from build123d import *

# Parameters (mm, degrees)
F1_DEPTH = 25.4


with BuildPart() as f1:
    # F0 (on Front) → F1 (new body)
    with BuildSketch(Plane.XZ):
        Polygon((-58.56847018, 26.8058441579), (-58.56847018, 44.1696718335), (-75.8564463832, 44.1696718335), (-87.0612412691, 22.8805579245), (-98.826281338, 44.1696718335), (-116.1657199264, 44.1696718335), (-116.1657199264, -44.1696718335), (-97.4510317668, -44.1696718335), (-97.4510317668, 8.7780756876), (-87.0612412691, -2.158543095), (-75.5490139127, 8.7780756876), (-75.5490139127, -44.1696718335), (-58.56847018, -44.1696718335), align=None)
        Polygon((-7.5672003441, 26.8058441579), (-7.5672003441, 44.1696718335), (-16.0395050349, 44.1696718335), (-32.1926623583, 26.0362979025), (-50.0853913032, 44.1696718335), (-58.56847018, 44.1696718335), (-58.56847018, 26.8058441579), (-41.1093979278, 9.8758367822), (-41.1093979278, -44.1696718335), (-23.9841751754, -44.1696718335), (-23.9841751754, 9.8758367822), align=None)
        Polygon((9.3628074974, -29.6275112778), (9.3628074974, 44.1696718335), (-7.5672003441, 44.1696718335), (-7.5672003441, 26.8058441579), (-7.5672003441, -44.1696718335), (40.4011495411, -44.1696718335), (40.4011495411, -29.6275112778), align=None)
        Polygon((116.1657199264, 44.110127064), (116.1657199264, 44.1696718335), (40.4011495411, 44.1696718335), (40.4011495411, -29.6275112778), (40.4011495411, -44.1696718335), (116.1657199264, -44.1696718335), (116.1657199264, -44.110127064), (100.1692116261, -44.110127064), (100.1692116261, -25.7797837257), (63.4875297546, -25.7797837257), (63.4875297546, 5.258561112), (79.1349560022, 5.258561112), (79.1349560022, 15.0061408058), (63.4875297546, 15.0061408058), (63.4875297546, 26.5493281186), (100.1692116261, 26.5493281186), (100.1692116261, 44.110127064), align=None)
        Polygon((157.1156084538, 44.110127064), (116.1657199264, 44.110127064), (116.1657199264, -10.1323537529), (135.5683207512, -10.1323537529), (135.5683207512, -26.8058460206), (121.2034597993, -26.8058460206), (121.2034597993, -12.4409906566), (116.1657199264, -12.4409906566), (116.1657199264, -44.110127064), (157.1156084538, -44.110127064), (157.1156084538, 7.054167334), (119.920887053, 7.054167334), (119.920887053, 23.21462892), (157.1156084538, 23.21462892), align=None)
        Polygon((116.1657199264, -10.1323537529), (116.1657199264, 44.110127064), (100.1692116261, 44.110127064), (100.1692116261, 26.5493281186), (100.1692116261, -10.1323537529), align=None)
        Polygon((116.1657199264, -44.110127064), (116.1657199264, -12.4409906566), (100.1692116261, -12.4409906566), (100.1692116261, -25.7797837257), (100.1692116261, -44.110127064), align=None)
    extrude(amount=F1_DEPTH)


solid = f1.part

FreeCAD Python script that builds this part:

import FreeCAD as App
import Part
import Sketcher

V = App.Vector
Q = App.Units.Quantity

doc = App.newDocument("Part")
params = doc.addObject("Spreadsheet::Sheet", "Params")
for row, (alias, value) in enumerate([
    ("pad1_length", "1 in"),
], start=1):
    params.set(f"A{row}", alias)
    params.set(f"B{row}", "=" + value)
    params.setAlias(f"B{row}", alias)

body = doc.addObject("PartDesign::Body", "Body")

# Sketch on XZ plane
sketch1 = doc.addObject("Sketcher::SketchObject", "Sketch")
body.addObject(sketch1)
sketch1.AttachmentSupport = (doc.XZ_Plane, [""])
sketch1.MapMode = "FlatFace"
sketch1.addGeometry(Part.LineSegment(V(116.16572, -44.169672, 0), V(116.16572, -44.110127, 0)), False)
sketch1.addGeometry(Part.LineSegment(V(116.16572, -44.110127, 0), V(157.115608, -44.110127, 0)), False)
sketch1.addGeometry(Part.LineSegment(V(157.115608, -44.110127, 0), V(157.115608, 7.054167, 0)), False)
sketch1.addGeometry(Part.LineSegment(V(157.115608, 7.054167, 0), V(119.920887, 7.054167, 0)), False)
sketch1.addGeometry(Part.LineSegment(V(119.920887, 7.054167, 0), V(119.920887, 23.214629, 0)), False)
sketch1.addGeometry(Part.LineSegment(V(119.920887, 23.214629, 0), V(157.115608, 23.214629, 0)), False)
sketch1.addGeometry(Part.LineSegment(V(157.115608, 23.214629, 0), V(157.115608, 44.110127, 0)), False)
sketch1.addGeometry(Part.LineSegment(V(157.115608, 44.110127, 0), V(116.16572, 44.110127, 0)), False)
sketch1.addGeometry(Part.LineSegment(V(116.16572, 44.110127, 0), V(116.16572, 44.169672, 0)), False)
sketch1.addGeometry(Part.LineSegment(V(116.16572, 44.169672, 0), V(40.40115, 44.169672, 0)), False)
sketch1.addGeometry(Part.LineSegment(V(40.40115, 44.169672, 0), V(40.40115, -29.627511, 0)), False)
sketch1.addGeometry(Part.LineSegment(V(40.40115, -29.627511, 0), V(9.362807, -29.627511, 0)), False)
sketch1.addGeometry(Part.LineSegment(V(9.362807, -29.627511, 0), V(9.362807, 44.169672, 0)), False)
sketch1.addGeometry(Part.LineSegment(V(9.362807, 44.169672, 0), V(-16.039505, 44.169672, 0)), False)
sketch1.addGeometry(Part.LineSegment(V(-16.039505, 44.169672, 0), V(-32.192662, 26.036298, 0)), False)
sketch1.addGeometry(Part.LineSegment(V(-32.192662, 26.036298, 0), V(-50.085391, 44.169672, 0)), False)
sketch1.addGeometry(Part.LineSegment(V(-50.085391, 44.169672, 0), V(-75.856446, 44.169672, 0)), False)
sketch1.addGeometry(Part.LineSegment(V(-75.856446, 44.169672, 0), V(-87.061241, 22.880558, 0)), False)
sketch1.addGeometry(Part.LineSegment(V(-87.061241, 22.880558, 0), V(-98.826281, 44.169672, 0)), False)
sketch1.addGeometry(Part.LineSegment(V(-98.826281, 44.169672, 0), V(-116.16572, 44.169672, 0)), False)
sketch1.addGeometry(Part.LineSegment(V(-116.16572, 44.169672, 0), V(-116.16572, -44.169672, 0)), False)
sketch1.addGeometry(Part.LineSegment(V(-116.16572, -44.169672, 0), V(-97.451032, -44.169672, 0)), False)
sketch1.addGeometry(Part.LineSegment(V(-97.451032, -44.169672, 0), V(-97.451032, 8.778076, 0)), False)
sketch1.addGeometry(Part.LineSegment(V(-97.451032, 8.778076, 0), V(-87.061241, -2.158543, 0)), False)
sketch1.addGeometry(Part.LineSegment(V(-87.061241, -2.158543, 0), V(-75.549014, 8.778076, 0)), False)
sketch1.addGeometry(Part.LineSegment(V(-75.549014, 8.778076, 0), V(-75.549014, -44.169672, 0)), False)
sketch1.addGeometry(Part.LineSegment(V(-75.549014, -44.169672, 0), V(-58.56847, -44.169672, 0)), False)
sketch1.addGeometry(Part.LineSegment(V(-58.56847, -44.169672, 0), V(-58.56847, 26.805844, 0)), False)
sketch1.addGeometry(Part.LineSegment(V(-58.56847, 26.805844, 0), V(-41.109398, 9.875837, 0)), False)
sketch1.addGeometry(Part.LineSegment(V(-41.109398, 9.875837, 0), V(-41.109398, -44.169672, 0)), False)
sketch1.addGeometry(Part.LineSegment(V(-41.109398, -44.169672, 0), V(-23.984175, -44.169672, 0)), False)
sketch1.addGeometry(Part.LineSegment(V(-23.984175, -44.169672, 0), V(-23.984175, 9.875837, 0)), False)
sketch1.addGeometry(Part.LineSegment(V(-23.984175, 9.875837, 0), V(-7.5672, 26.805844, 0)), False)
sketch1.addGeometry(Part.LineSegment(V(-7.5672, 26.805844, 0), V(-7.5672, -44.169672, 0)), False)
sketch1.addGeometry(Part.LineSegment(V(-7.5672, -44.169672, 0), V(116.16572, -44.169672, 0)), False)
sketch1.addGeometry(Part.LineSegment(V(121.20346, -12.440991, 0), V(100.169212, -12.440991, 0)), False)
sketch1.addGeometry(Part.LineSegment(V(100.169212, -12.440991, 0), V(100.169212, -25.779784, 0)), False)
sketch1.addGeometry(Part.LineSegment(V(100.169212, -25.779784, 0), V(63.48753, -25.779784, 0)), False)
sketch1.addGeometry(Part.LineSegment(V(63.48753, -25.779784, 0), V(63.48753, 5.258561, 0)), False)
sketch1.addGeometry(Part.LineSegment(V(63.48753, 5.258561, 0), V(79.134956, 5.258561, 0)), False)
sketch1.addGeometry(Part.LineSegment(V(79.134956, 5.258561, 0), V(79.134956, 15.006141, 0)), False)
sketch1.addGeometry(Part.LineSegment(V(79.134956, 15.006141, 0), V(63.48753, 15.006141, 0)), False)
sketch1.addGeometry(Part.LineSegment(V(63.48753, 15.006141, 0), V(63.48753, 26.549328, 0)), False)
sketch1.addGeometry(Part.LineSegment(V(63.48753, 26.549328, 0), V(100.169212, 26.549328, 0)), False)
sketch1.addGeometry(Part.LineSegment(V(100.169212, 26.549328, 0), V(100.169212, -10.132354, 0)), False)
sketch1.addGeometry(Part.LineSegment(V(100.169212, -10.132354, 0), V(135.568321, -10.132354, 0)), False)
sketch1.addGeometry(Part.LineSegment(V(135.568321, -10.132354, 0), V(135.568321, -26.805846, 0)), False)
sketch1.addGeometry(Part.LineSegment(V(135.568321, -26.805846, 0), V(121.20346, -26.805846, 0)), False)
sketch1.addGeometry(Part.LineSegment(V(121.20346, -26.805846, 0), V(121.20346, -12.440991, 0)), False)
sketch1.addConstraint(Sketcher.Constraint("Coincident", 0, 2, 1, 1))
sketch1.addConstraint(Sketcher.Constraint("Coincident", 1, 2, 2, 1))
sketch1.addConstraint(Sketcher.Constraint("Coincident", 2, 2, 3, 1))
sketch1.addConstraint(Sketcher.Constraint("Coincident", 3, 2, 4, 1))
sketch1.addConstraint(Sketcher.Constraint("Coincident", 4, 2, 5, 1))
sketch1.addConstraint(Sketcher.Constraint("Coincident", 5, 2, 6, 1))
sketch1.addConstraint(Sketcher.Constraint("Coincident", 6, 2, 7, 1))
sketch1.addConstraint(Sketcher.Constraint("Coincident", 7, 2, 8, 1))
sketch1.addConstraint(Sketcher.Constraint("Coincident", 8, 2, 9, 1))
sketch1.addConstraint(Sketcher.Constraint("Coincident", 9, 2, 10, 1))
sketch1.addConstraint(Sketcher.Constraint("Coincident", 10, 2, 11, 1))
sketch1.addConstraint(Sketcher.Constraint("Coincident", 11, 2, 12, 1))
sketch1.addConstraint(Sketcher.Constraint("Coincident", 12, 2, 13, 1))
sketch1.addConstraint(Sketcher.Constraint("Coincident", 13, 2, 14, 1))
sketch1.addConstraint(Sketcher.Constraint("Coincident", 14, 2, 15, 1))
sketch1.addConstraint(Sketcher.Constraint("Coincident", 15, 2, 16, 1))
sketch1.addConstraint(Sketcher.Constraint("Coincident", 16, 2, 17, 1))
sketch1.addConstraint(Sketcher.Constraint("Coincident", 17, 2, 18, 1))
sketch1.addConstraint(Sketcher.Constraint("Coincident", 18, 2, 19, 1))
sketch1.addConstraint(Sketcher.Constraint("Coincident", 19, 2, 20, 1))
sketch1.addConstraint(Sketcher.Constraint("Coincident", 20, 2, 21, 1))
sketch1.addConstraint(Sketcher.Constraint("Coincident", 21, 2, 22, 1))
sketch1.addConstraint(Sketcher.Constraint("Coincident", 22, 2, 23, 1))
sketch1.addConstraint(Sketcher.Constraint("Coincident", 23, 2, 24, 1))
sketch1.addConstraint(Sketcher.Constraint("Coincident", 24, 2, 25, 1))
sketch1.addConstraint(Sketcher.Constraint("Coincident", 25, 2, 26, 1))
sketch1.addConstraint(Sketcher.Constraint("Coincident", 26, 2, 27, 1))
sketch1.addConstraint(Sketcher.Constraint("Coincident", 27, 2, 28, 1))
sketch1.addConstraint(Sketcher.Constraint("Coincident", 28, 2, 29, 1))
sketch1.addConstraint(Sketcher.Constraint("Coincident", 29, 2, 30, 1))
sketch1.addConstraint(Sketcher.Constraint("Coincident", 30, 2, 31, 1))
sketch1.addConstraint(Sketcher.Constraint("Coincident", 31, 2, 32, 1))
sketch1.addConstraint(Sketcher.Constraint("Coincident", 32, 2, 33, 1))
sketch1.addConstraint(Sketcher.Constraint("Coincident", 33, 2, 34, 1))
sketch1.addConstraint(Sketcher.Constraint("Coincident", 34, 2, 0, 1))
sketch1.addConstraint(Sketcher.Constraint("Coincident", 35, 2, 36, 1))
sketch1.addConstraint(Sketcher.Constraint("Coincident", 36, 2, 37, 1))
sketch1.addConstraint(Sketcher.Constraint("Coincident", 37, 2, 38, 1))
sketch1.addConstraint(Sketcher.Constraint("Coincident", 38, 2, 39, 1))
sketch1.addConstraint(Sketcher.Constraint("Coincident", 39, 2, 40, 1))
sketch1.addConstraint(Sketcher.Constraint("Coincident", 40, 2, 41, 1))
sketch1.addConstraint(Sketcher.Constraint("Coincident", 41, 2, 42, 1))
sketch1.addConstraint(Sketcher.Constraint("Coincident", 42, 2, 43, 1))
sketch1.addConstraint(Sketcher.Constraint("Coincident", 43, 2, 44, 1))
sketch1.addConstraint(Sketcher.Constraint("Coincident", 44, 2, 45, 1))
sketch1.addConstraint(Sketcher.Constraint("Coincident", 45, 2, 46, 1))
sketch1.addConstraint(Sketcher.Constraint("Coincident", 46, 2, 47, 1))
sketch1.addConstraint(Sketcher.Constraint("Coincident", 47, 2, 48, 1))
sketch1.addConstraint(Sketcher.Constraint("Coincident", 48, 2, 35, 1))
sketch1.addConstraint(Sketcher.Constraint("Vertical", 0))
sketch1.addConstraint(Sketcher.Constraint("Horizontal", 1))
sketch1.addConstraint(Sketcher.Constraint("Vertical", 2))
sketch1.addConstraint(Sketcher.Constraint("Horizontal", 3))
sketch1.addConstraint(Sketcher.Constraint("Vertical", 4))
sketch1.addConstraint(Sketcher.Constraint("Horizontal", 5))
sketch1.addConstraint(Sketcher.Constraint("Vertical", 6))
sketch1.addConstraint(Sketcher.Constraint("Horizontal", 7))
sketch1.addConstraint(Sketcher.Constraint("Vertical", 8))
sketch1.addConstraint(Sketcher.Constraint("Horizontal", 9))
sketch1.addConstraint(Sketcher.Constraint("Vertical", 10))
sketch1.addConstraint(Sketcher.Constraint("Horizontal", 11))
sketch1.addConstraint(Sketcher.Constraint("Vertical", 12))
sketch1.addConstraint(Sketcher.Constraint("Horizontal", 13))
sketch1.addConstraint(Sketcher.Constraint("Horizontal", 16))
sketch1.addConstraint(Sketcher.Constraint("Horizontal", 19))
sketch1.addConstraint(Sketcher.Constraint("Vertical", 20))
sketch1.addConstraint(Sketcher.Constraint("Horizontal", 21))
sketch1.addConstraint(Sketcher.Constraint("Vertical", 22))
sketch1.addConstraint(Sketcher.Constraint("Vertical", 25))
sketch1.addConstraint(Sketcher.Constraint("Horizontal", 26))
sketch1.addConstraint(Sketcher.Constraint("Vertical", 27))
sketch1.addConstraint(Sketcher.Constraint("Vertical", 29))
sketch1.addConstraint(Sketcher.Constraint("Horizontal", 30))
sketch1.addConstraint(Sketcher.Constraint("Vertical", 31))
sketch1.addConstraint(Sketcher.Constraint("Vertical", 33))
sketch1.addConstraint(Sketcher.Constraint("Horizontal", 34))
sketch1.addConstraint(Sketcher.Constraint("Horizontal", 35))
sketch1.addConstraint(Sketcher.Constraint("Vertical", 36))
sketch1.addConstraint(Sketcher.Constraint("Horizontal", 37))
sketch1.addConstraint(Sketcher.Constraint("Vertical", 38))
sketch1.addConstraint(Sketcher.Constraint("Horizontal", 39))
sketch1.addConstraint(Sketcher.Constraint("Vertical", 40))
sketch1.addConstraint(Sketcher.Constraint("Horizontal", 41))
sketch1.addConstraint(Sketcher.Constraint("Vertical", 42))
sketch1.addConstraint(Sketcher.Constraint("Horizontal", 43))
sketch1.addConstraint(Sketcher.Constraint("Vertical", 44))
sketch1.addConstraint(Sketcher.Constraint("Horizontal", 45))
sketch1.addConstraint(Sketcher.Constraint("Vertical", 46))
sketch1.addConstraint(Sketcher.Constraint("Horizontal", 47))
sketch1.addConstraint(Sketcher.Constraint("Vertical", 48))
sketch1.addConstraint(Sketcher.Constraint("Symmetric", 8, 2, 20, 2, -1, 1))
sketch1.addConstraint(Sketcher.Constraint("Symmetric", 19, 2, 34, 2, -1, 1))
sketch1.addConstraint(Sketcher.Constraint("Symmetric", 1, 2, 6, 2, -1))
sketch1.addConstraint(Sketcher.Constraint("Perpendicular", 23, 24))
sketch1.addConstraint(Sketcher.Constraint("Perpendicular", 28, 32))
sketch1.addConstraint(Sketcher.Constraint("Horizontal", 9, 2, 12, 2))
sketch1.addConstraint(Sketcher.Constraint("Horizontal", 13, 2, 15, 2))
sketch1.addConstraint(Sketcher.Constraint("Horizontal", 16, 2, 18, 2))
sketch1.addConstraint(Sketcher.Constraint("Horizontal", 22, 2, 24, 2))
sketch1.addConstraint(Sketcher.Constraint("Horizontal", 21, 2, 25, 2))
sketch1.addConstraint(Sketcher.Constraint("Horizontal", 26, 2, 29, 2))
sketch1.addConstraint(Sketcher.Constraint("Horizontal", 28, 2, 31, 2))
sketch1.addConstraint(Sketcher.Constraint("Horizontal", 27, 2, 32, 2))
sketch1.addConstraint(Sketcher.Constraint("Vertical", 17, 2, 23, 2))
sketch1.addConstraint(Sketcher.Constraint("Vertical", 38, 2, 41, 2))
sketch1.addConstraint(Sketcher.Constraint("Vertical", 36, 2, 43, 2))
sketch1.addConstraint(Sketcher.Constraint("Equal", 43, 44))
sketch1.addConstraint(Sketcher.Constraint("DistanceY", 6, 1, 6, 2, Q("20.895498 mm")))
sketch1.addConstraint(Sketcher.Constraint("DistanceX", 1, 1, 1, 2, Q("40.949889 mm")))
sketch1.addConstraint(Sketcher.Constraint("DistanceX", 3, 2, 3, 1, Q("37.194721 mm")))
sketch1.addConstraint(Sketcher.Constraint("DistanceX", 9, 2, 9, 1, Q("75.76457 mm")))
sketch1.addConstraint(Sketcher.Constraint("DistanceX", 19, 2, 19, 1, Q("17.339439 mm")))
sketch1.addConstraint(Sketcher.Constraint("DistanceX", 21, 1, 21, 2, Q("18.714688 mm")))
sketch1.addConstraint(Sketcher.Constraint("DistanceX", 34, 1, 34, 2, Q("123.73292 mm")))
sketch1.addConstraint(Sketcher.Constraint("DistanceX", 35, 2, 35, 1, Q("21.034248 mm")))
sketch1.addConstraint(Sketcher.Constraint("DistanceX", 37, 2, 37, 1, Q("36.681682 mm")))
sketch1.addConstraint(Sketcher.Constraint("DistanceX", 45, 1, 45, 2, Q("35.399109 mm")))
sketch1.addConstraint(Sketcher.Constraint("DistanceY", 4, 1, 4, 2, Q("16.160462 mm")))
sketch1.addConstraint(Sketcher.Constraint("DistanceY", 29, 2, 29, 1, Q("54.045509 mm")))
sketch1.addConstraint(Sketcher.Constraint("DistanceY", 40, 1, 40, 2, Q("9.74758 mm")))
sketch1.addConstraint(Sketcher.Constraint("DistanceX", 32, 2, -1, 1, Q("7.5672 mm")))
sketch1.addConstraint(Sketcher.Constraint("DistanceY", 0, 2, 9, 2, Q("88.279799 mm")))
sketch1.addConstraint(Sketcher.Constraint("DistanceX", 15, 2, 12, 2, Q("59.448199 mm")))
sketch1.addConstraint(Sketcher.Constraint("DistanceY", 23, 2, 17, 2, Q("25.039101 mm")))
sketch1.addConstraint(Sketcher.Constraint("DistanceY", 4, 2, 43, 2, Q("3.334699 mm")))
sketch1.addConstraint(Sketcher.Constraint("DistanceX", 0, 2, 46, 2, Q("19.402601 mm")))
sketch1.addConstraint(Sketcher.Constraint("Distance", 14, Q("24.28464 mm")))
sketch1.addConstraint(Sketcher.Constraint("Distance", 15, Q("25.47487 mm")))
sketch1.addConstraint(Sketcher.Constraint("Distance", 17, Q("24.057718 mm")))
sketch1.addConstraint(Sketcher.Constraint("Distance", 24, Q("15.878949 mm")))
sketch1.addConstraint(Sketcher.Constraint("Distance", 28, Q("24.319629 mm")))
sketch1.addConstraint(Sketcher.Constraint("DistanceX", 11, 2, 11, 1, Q("31.038342 mm")))
sketch1.addConstraint(Sketcher.Constraint("DistanceX", 13, 2, 13, 1, Q("25.402313 mm")))
sketch1.addConstraint(Sketcher.Constraint("DistanceX", 16, 2, 16, 1, Q("25.771055 mm")))
sketch1.addConstraint(Sketcher.Constraint("DistanceX", 26, 1, 26, 2, Q("16.980544 mm")))
sketch1.addConstraint(Sketcher.Constraint("DistanceX", 30, 1, 30, 2, Q("17.125223 mm")))
sketch1.addConstraint(Sketcher.Constraint("DistanceX", 39, 1, 39, 2, Q("15.647426 mm")))
sketch1.addConstraint(Sketcher.Constraint("DistanceY", 0, 1, 0, 2, Q("0.059545 mm")))
sketch1.addConstraint(Sketcher.Constraint("DistanceY", 10, 2, 10, 1, Q("73.797183 mm")))
sketch1.addConstraint(Sketcher.Constraint("DistanceY", 22, 1, 22, 2, Q("52.947748 mm")))
sketch1.addConstraint(Sketcher.Constraint("DistanceY", 36, 2, 36, 1, Q("13.338793 mm")))
sketch1.addConstraint(Sketcher.Constraint("DistanceY", 38, 1, 38, 2, Q("31.038345 mm")))
sketch1.addConstraint(Sketcher.Constraint("DistanceY", 42, 1, 42, 2, Q("11.543187 mm")))
sketch1.addConstraint(Sketcher.Constraint("DistanceY", 46, 2, 46, 1, Q("16.673492 mm")))
pad1 = doc.addObject("PartDesign::Pad", "Pad")
body.addObject(pad1)
pad1.Profile = sketch1
pad1.setExpression("Length", "Params.pad1_length")

doc.recompute()
